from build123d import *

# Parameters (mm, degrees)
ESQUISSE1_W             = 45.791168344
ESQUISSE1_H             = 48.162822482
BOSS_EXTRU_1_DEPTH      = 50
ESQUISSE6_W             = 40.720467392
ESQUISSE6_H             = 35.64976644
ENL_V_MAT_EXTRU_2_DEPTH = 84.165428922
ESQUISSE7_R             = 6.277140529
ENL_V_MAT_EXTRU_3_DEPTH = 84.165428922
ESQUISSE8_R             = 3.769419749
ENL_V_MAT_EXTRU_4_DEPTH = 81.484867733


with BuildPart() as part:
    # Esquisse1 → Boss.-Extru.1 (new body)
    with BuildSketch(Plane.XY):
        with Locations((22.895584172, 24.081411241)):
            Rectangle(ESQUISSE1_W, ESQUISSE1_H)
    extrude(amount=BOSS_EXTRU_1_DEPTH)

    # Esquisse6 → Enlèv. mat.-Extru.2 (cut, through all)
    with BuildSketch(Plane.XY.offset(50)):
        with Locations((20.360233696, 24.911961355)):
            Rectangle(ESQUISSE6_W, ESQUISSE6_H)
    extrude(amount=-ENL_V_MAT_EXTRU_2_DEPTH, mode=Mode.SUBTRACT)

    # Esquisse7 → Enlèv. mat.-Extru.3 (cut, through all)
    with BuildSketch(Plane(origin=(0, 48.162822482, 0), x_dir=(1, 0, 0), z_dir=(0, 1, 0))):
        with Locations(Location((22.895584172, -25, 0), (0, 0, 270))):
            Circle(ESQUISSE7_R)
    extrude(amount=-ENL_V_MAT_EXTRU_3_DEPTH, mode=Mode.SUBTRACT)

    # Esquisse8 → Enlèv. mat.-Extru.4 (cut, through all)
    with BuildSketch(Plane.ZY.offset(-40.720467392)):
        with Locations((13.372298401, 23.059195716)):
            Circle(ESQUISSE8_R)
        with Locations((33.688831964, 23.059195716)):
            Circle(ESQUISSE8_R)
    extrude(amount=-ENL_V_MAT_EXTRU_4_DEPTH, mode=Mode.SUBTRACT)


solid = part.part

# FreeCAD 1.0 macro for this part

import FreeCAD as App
import Part
import Sketcher

V = App.Vector
Q = App.Units.Quantity


def add_polygon(sketch, points):
    """Adds a closed chain of lines whose ends are joined by coincident constraints."""
    first, n = sketch.GeometryCount, len(points)
    for a, b in zip(points, points[1:] + points[:1]):
        sketch.addGeometry(Part.LineSegment(App.Vector(*a, 0), App.Vector(*b, 0)), False)
    for i in range(n):
        sketch.addConstraint(Sketcher.Constraint("Coincident", first + i, 2, first + (i + 1) % n, 1))

doc = App.newDocument("Part")
body = doc.addObject("PartDesign::Body", "Body")

sketch1 = body.newObject("Sketcher::SketchObject", "Sketch")
sketch1.AttachmentSupport = (doc.getObject("XY_Plane"), [""])
sketch1.MapMode = "FlatFace"
add_polygon(sketch1, [(0, 48.162822), (0, 0), (45.791168, 0), (45.791168, 48.162822)])
sketch1.addConstraint([
    Sketcher.Constraint("Vertical", 0),
    Sketcher.Constraint("Horizontal", 1),
    Sketcher.Constraint("Vertical", 2),
    Sketcher.Constraint("Horizontal", 3),
    Sketcher.Constraint("Coincident", 0, 2, -1, 1),
    Sketcher.Constraint("DistanceX", 1, 1, 1, 2, Q("45.791168 mm")),
    Sketcher.Constraint("DistanceY", 0, 2, 0, 1, Q("48.162822 mm")),
])
pad1 = body.newObject("PartDesign::Pad", "Pad")
pad1.Profile = sketch1
pad1.Length = 50

sketch2 = body.newObject("Sketcher::SketchObject", "Sketch001")
sketch2.AttachmentSupport = (doc.getObject("XY_Plane"), [""])
sketch2.MapMode = "FlatFace"
sketch2.AttachmentOffset = App.Placement(V(0, 0, 50), App.Rotation())
add_polygon(sketch2, [(0, 42.736845), (0, 7.087078), (40.720467, 7.087078), (40.720467, 42.736845)])
sketch2.addConstraint([
    Sketcher.Constraint("Vertical", 0),
    Sketcher.Constraint("Horizontal", 1),
    Sketcher.Constraint("Vertical", 2),
    Sketcher.Constraint("Horizontal", 3),
    Sketcher.Constraint("PointOnObject", 0, 2, -2),
    Sketcher.Constraint("DistanceX", 1, 1, 1, 2, Q("40.720467 mm")),
    Sketcher.Constraint("DistanceY", 0, 2, 0, 1, Q("35.649766 mm")),
    Sketcher.Constraint("DistanceY", -1, 1, 0, 2, Q("7.087078 mm")),
])
pocket1 = body.newObject("PartDesign::Pocket", "Pocket")
pocket1.Profile = sketch2
pocket1.Type = "ThroughAll"

sketch3 = body.newObject("Sketcher::SketchObject", "Sketch002")
sketch3.AttachmentSupport = (doc.getObject("XZ_Plane"), [""])
sketch3.MapMode = "FlatFace"
sketch3.AttachmentOffset = App.Placement(V(0, 0, -48.162822), App.Rotation())
sketch3.addGeometry(Part.Circle(V(22.895584, 25, 0), V(0, 0, 1), 6.277141), False)
sketch3.addConstraint([
    Sketcher.Constraint("DistanceY", -1, 1, 0, 3, Q("25 mm")),
    Sketcher.Constraint("Diameter", 0, Q("12.554281 mm")),
    Sketcher.Constraint("DistanceX", -1, 1, 0, 3, Q("22.895584 mm")),
])
pocket2 = body.newObject("PartDesign::Pocket", "Pocket001")
pocket2.Profile = sketch3
pocket2.Type = "ThroughAll"
pocket2.Reversed = True

sketch4 = body.newObject("Sketcher::SketchObject", "Sketch003")
sketch4.AttachmentSupport = (doc.getObject("YZ_Plane"), [""])
sketch4.MapMode = "FlatFace"
sketch4.AttachmentOffset = App.Placement(V(0, 0, 40.720467), App.Rotation())
sketch4.addGeometry([
    Part.Circle(V(23.059196, 13.372298, 0), V(0, 0, 1), 3.76942),
    Part.Circle(V(23.059196, 33.688832, 0), V(0, 0, 1), 3.76942),
], False)
sketch4.addConstraint([
    Sketcher.Constraint("Equal", 0, 1),
    Sketcher.Constraint("Vertical", 0, 3, 1, 3),
    Sketcher.Constraint("Diameter", 0, Q("7.538839 mm")),
    Sketcher.Constraint("DistanceY", -1, 1, 0, 3, Q("13.372298 mm")),
    Sketcher.Constraint("DistanceY", -1, 1, 1, 3, Q("33.688832 mm")),
    Sketcher.Constraint("DistanceX", -1, 1, 0, 3, Q("23.059196 mm")),
])
pocket3 = body.newObject("PartDesign::Pocket", "Pocket002")
pocket3.Profile = sketch4
pocket3.Type = "ThroughAll"
pocket3.Reversed = True

doc.recompute()
